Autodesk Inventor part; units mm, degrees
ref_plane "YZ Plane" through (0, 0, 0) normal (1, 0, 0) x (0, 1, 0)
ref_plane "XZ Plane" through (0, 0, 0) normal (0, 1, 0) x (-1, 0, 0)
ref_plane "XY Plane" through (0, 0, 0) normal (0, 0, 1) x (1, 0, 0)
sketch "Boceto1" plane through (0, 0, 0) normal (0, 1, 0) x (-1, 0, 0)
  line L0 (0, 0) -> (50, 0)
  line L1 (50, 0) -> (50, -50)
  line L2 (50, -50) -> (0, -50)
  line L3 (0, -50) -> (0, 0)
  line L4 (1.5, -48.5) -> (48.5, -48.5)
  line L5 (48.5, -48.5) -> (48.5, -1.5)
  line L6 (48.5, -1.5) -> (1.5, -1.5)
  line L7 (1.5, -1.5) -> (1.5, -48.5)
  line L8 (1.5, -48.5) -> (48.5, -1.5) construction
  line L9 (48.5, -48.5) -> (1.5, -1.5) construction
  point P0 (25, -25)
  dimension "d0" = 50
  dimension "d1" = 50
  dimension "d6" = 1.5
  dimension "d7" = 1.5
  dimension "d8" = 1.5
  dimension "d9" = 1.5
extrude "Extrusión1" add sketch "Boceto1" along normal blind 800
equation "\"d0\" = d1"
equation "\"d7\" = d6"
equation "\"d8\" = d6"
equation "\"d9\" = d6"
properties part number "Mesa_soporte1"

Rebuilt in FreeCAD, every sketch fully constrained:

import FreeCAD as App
import Part
import Sketcher
from FreeCAD import Vector
Q = App.Units.Quantity


def add_polygon(sketch, points):
    """Adds a closed chain of lines whose ends are joined by coincident constraints."""
    first, n = sketch.GeometryCount, len(points)
    for a, b in zip(points, points[1:] + points[:1]):
        sketch.addGeometry(Part.LineSegment(App.Vector(*a, 0), App.Vector(*b, 0)), False)
    for i in range(n):
        sketch.addConstraint(Sketcher.Constraint("Coincident", first + i, 2, first + (i + 1) % n, 1))

doc = App.newDocument("Part")
params = doc.addObject("Spreadsheet::Sheet", "Params")
for row, (alias, value) in enumerate([
    ("sketch1_width", "50 mm"),
    ("pad1_length", "800 mm"),
], start=1):
    params.set(f"A{row}", alias)
    params.set(f"B{row}", "=" + value)
    params.setAlias(f"B{row}", alias)

body = doc.addObject("PartDesign::Body", "Body")

# Sketch on XZ plane
sketch1 = body.newObject("Sketcher::SketchObject", "Sketch")
sketch1.AttachmentSupport = (doc.getObject("XZ_Plane"), [""])
sketch1.MapMode = "FlatFace"
add_polygon(sketch1, [(-50, 0), (0, 0), (0, -50), (-50, -50)])  # lines 0-3
add_polygon(sketch1, [(-48, -48), (-2, -48), (-2, -2), (-48, -2)])  # lines 4-7
sketch1.addConstraint(Sketcher.Constraint("Horizontal", 0))
sketch1.addConstraint(Sketcher.Constraint("Vertical", 1))
sketch1.addConstraint(Sketcher.Constraint("Horizontal", 2))
sketch1.addConstraint(Sketcher.Constraint("Vertical", 3))
sketch1.addConstraint(Sketcher.Constraint("Horizontal", 4))
sketch1.addConstraint(Sketcher.Constraint("Vertical", 5))
sketch1.addConstraint(Sketcher.Constraint("Horizontal", 6))
sketch1.addConstraint(Sketcher.Constraint("Vertical", 7))
sketch1.addConstraint(Sketcher.Constraint("Coincident", 0, 2, -1, 1))
sketch1.addConstraint(Sketcher.Constraint("Equal", 2, 1))
sketch1.addConstraint(Sketcher.Constraint("Equal", 6, 5))
sketch1.addConstraint(Sketcher.Constraint("DistanceX", 0, 1, 0, 2, Q("50 mm")))
sketch1.addConstraint(Sketcher.Constraint("DistanceX", 4, 2, -1, 1, Q("1.5 mm")))
sketch1.addConstraint(Sketcher.Constraint("DistanceY", 5, 2, -1, 1, Q("1.5 mm")))
sketch1.addConstraint(Sketcher.Constraint("DistanceY", 1, 2, 4, 2, Q("1.5 mm")))
sketch1.setExpression("Constraints[19]", "Params.sketch1_width")
pad1 = body.newObject("PartDesign::Pad", "Pad")
pad1.Profile = sketch1
pad1.setExpression("Length", "Params.pad1_length")
pad1.Reversed = True

doc.recompute()
